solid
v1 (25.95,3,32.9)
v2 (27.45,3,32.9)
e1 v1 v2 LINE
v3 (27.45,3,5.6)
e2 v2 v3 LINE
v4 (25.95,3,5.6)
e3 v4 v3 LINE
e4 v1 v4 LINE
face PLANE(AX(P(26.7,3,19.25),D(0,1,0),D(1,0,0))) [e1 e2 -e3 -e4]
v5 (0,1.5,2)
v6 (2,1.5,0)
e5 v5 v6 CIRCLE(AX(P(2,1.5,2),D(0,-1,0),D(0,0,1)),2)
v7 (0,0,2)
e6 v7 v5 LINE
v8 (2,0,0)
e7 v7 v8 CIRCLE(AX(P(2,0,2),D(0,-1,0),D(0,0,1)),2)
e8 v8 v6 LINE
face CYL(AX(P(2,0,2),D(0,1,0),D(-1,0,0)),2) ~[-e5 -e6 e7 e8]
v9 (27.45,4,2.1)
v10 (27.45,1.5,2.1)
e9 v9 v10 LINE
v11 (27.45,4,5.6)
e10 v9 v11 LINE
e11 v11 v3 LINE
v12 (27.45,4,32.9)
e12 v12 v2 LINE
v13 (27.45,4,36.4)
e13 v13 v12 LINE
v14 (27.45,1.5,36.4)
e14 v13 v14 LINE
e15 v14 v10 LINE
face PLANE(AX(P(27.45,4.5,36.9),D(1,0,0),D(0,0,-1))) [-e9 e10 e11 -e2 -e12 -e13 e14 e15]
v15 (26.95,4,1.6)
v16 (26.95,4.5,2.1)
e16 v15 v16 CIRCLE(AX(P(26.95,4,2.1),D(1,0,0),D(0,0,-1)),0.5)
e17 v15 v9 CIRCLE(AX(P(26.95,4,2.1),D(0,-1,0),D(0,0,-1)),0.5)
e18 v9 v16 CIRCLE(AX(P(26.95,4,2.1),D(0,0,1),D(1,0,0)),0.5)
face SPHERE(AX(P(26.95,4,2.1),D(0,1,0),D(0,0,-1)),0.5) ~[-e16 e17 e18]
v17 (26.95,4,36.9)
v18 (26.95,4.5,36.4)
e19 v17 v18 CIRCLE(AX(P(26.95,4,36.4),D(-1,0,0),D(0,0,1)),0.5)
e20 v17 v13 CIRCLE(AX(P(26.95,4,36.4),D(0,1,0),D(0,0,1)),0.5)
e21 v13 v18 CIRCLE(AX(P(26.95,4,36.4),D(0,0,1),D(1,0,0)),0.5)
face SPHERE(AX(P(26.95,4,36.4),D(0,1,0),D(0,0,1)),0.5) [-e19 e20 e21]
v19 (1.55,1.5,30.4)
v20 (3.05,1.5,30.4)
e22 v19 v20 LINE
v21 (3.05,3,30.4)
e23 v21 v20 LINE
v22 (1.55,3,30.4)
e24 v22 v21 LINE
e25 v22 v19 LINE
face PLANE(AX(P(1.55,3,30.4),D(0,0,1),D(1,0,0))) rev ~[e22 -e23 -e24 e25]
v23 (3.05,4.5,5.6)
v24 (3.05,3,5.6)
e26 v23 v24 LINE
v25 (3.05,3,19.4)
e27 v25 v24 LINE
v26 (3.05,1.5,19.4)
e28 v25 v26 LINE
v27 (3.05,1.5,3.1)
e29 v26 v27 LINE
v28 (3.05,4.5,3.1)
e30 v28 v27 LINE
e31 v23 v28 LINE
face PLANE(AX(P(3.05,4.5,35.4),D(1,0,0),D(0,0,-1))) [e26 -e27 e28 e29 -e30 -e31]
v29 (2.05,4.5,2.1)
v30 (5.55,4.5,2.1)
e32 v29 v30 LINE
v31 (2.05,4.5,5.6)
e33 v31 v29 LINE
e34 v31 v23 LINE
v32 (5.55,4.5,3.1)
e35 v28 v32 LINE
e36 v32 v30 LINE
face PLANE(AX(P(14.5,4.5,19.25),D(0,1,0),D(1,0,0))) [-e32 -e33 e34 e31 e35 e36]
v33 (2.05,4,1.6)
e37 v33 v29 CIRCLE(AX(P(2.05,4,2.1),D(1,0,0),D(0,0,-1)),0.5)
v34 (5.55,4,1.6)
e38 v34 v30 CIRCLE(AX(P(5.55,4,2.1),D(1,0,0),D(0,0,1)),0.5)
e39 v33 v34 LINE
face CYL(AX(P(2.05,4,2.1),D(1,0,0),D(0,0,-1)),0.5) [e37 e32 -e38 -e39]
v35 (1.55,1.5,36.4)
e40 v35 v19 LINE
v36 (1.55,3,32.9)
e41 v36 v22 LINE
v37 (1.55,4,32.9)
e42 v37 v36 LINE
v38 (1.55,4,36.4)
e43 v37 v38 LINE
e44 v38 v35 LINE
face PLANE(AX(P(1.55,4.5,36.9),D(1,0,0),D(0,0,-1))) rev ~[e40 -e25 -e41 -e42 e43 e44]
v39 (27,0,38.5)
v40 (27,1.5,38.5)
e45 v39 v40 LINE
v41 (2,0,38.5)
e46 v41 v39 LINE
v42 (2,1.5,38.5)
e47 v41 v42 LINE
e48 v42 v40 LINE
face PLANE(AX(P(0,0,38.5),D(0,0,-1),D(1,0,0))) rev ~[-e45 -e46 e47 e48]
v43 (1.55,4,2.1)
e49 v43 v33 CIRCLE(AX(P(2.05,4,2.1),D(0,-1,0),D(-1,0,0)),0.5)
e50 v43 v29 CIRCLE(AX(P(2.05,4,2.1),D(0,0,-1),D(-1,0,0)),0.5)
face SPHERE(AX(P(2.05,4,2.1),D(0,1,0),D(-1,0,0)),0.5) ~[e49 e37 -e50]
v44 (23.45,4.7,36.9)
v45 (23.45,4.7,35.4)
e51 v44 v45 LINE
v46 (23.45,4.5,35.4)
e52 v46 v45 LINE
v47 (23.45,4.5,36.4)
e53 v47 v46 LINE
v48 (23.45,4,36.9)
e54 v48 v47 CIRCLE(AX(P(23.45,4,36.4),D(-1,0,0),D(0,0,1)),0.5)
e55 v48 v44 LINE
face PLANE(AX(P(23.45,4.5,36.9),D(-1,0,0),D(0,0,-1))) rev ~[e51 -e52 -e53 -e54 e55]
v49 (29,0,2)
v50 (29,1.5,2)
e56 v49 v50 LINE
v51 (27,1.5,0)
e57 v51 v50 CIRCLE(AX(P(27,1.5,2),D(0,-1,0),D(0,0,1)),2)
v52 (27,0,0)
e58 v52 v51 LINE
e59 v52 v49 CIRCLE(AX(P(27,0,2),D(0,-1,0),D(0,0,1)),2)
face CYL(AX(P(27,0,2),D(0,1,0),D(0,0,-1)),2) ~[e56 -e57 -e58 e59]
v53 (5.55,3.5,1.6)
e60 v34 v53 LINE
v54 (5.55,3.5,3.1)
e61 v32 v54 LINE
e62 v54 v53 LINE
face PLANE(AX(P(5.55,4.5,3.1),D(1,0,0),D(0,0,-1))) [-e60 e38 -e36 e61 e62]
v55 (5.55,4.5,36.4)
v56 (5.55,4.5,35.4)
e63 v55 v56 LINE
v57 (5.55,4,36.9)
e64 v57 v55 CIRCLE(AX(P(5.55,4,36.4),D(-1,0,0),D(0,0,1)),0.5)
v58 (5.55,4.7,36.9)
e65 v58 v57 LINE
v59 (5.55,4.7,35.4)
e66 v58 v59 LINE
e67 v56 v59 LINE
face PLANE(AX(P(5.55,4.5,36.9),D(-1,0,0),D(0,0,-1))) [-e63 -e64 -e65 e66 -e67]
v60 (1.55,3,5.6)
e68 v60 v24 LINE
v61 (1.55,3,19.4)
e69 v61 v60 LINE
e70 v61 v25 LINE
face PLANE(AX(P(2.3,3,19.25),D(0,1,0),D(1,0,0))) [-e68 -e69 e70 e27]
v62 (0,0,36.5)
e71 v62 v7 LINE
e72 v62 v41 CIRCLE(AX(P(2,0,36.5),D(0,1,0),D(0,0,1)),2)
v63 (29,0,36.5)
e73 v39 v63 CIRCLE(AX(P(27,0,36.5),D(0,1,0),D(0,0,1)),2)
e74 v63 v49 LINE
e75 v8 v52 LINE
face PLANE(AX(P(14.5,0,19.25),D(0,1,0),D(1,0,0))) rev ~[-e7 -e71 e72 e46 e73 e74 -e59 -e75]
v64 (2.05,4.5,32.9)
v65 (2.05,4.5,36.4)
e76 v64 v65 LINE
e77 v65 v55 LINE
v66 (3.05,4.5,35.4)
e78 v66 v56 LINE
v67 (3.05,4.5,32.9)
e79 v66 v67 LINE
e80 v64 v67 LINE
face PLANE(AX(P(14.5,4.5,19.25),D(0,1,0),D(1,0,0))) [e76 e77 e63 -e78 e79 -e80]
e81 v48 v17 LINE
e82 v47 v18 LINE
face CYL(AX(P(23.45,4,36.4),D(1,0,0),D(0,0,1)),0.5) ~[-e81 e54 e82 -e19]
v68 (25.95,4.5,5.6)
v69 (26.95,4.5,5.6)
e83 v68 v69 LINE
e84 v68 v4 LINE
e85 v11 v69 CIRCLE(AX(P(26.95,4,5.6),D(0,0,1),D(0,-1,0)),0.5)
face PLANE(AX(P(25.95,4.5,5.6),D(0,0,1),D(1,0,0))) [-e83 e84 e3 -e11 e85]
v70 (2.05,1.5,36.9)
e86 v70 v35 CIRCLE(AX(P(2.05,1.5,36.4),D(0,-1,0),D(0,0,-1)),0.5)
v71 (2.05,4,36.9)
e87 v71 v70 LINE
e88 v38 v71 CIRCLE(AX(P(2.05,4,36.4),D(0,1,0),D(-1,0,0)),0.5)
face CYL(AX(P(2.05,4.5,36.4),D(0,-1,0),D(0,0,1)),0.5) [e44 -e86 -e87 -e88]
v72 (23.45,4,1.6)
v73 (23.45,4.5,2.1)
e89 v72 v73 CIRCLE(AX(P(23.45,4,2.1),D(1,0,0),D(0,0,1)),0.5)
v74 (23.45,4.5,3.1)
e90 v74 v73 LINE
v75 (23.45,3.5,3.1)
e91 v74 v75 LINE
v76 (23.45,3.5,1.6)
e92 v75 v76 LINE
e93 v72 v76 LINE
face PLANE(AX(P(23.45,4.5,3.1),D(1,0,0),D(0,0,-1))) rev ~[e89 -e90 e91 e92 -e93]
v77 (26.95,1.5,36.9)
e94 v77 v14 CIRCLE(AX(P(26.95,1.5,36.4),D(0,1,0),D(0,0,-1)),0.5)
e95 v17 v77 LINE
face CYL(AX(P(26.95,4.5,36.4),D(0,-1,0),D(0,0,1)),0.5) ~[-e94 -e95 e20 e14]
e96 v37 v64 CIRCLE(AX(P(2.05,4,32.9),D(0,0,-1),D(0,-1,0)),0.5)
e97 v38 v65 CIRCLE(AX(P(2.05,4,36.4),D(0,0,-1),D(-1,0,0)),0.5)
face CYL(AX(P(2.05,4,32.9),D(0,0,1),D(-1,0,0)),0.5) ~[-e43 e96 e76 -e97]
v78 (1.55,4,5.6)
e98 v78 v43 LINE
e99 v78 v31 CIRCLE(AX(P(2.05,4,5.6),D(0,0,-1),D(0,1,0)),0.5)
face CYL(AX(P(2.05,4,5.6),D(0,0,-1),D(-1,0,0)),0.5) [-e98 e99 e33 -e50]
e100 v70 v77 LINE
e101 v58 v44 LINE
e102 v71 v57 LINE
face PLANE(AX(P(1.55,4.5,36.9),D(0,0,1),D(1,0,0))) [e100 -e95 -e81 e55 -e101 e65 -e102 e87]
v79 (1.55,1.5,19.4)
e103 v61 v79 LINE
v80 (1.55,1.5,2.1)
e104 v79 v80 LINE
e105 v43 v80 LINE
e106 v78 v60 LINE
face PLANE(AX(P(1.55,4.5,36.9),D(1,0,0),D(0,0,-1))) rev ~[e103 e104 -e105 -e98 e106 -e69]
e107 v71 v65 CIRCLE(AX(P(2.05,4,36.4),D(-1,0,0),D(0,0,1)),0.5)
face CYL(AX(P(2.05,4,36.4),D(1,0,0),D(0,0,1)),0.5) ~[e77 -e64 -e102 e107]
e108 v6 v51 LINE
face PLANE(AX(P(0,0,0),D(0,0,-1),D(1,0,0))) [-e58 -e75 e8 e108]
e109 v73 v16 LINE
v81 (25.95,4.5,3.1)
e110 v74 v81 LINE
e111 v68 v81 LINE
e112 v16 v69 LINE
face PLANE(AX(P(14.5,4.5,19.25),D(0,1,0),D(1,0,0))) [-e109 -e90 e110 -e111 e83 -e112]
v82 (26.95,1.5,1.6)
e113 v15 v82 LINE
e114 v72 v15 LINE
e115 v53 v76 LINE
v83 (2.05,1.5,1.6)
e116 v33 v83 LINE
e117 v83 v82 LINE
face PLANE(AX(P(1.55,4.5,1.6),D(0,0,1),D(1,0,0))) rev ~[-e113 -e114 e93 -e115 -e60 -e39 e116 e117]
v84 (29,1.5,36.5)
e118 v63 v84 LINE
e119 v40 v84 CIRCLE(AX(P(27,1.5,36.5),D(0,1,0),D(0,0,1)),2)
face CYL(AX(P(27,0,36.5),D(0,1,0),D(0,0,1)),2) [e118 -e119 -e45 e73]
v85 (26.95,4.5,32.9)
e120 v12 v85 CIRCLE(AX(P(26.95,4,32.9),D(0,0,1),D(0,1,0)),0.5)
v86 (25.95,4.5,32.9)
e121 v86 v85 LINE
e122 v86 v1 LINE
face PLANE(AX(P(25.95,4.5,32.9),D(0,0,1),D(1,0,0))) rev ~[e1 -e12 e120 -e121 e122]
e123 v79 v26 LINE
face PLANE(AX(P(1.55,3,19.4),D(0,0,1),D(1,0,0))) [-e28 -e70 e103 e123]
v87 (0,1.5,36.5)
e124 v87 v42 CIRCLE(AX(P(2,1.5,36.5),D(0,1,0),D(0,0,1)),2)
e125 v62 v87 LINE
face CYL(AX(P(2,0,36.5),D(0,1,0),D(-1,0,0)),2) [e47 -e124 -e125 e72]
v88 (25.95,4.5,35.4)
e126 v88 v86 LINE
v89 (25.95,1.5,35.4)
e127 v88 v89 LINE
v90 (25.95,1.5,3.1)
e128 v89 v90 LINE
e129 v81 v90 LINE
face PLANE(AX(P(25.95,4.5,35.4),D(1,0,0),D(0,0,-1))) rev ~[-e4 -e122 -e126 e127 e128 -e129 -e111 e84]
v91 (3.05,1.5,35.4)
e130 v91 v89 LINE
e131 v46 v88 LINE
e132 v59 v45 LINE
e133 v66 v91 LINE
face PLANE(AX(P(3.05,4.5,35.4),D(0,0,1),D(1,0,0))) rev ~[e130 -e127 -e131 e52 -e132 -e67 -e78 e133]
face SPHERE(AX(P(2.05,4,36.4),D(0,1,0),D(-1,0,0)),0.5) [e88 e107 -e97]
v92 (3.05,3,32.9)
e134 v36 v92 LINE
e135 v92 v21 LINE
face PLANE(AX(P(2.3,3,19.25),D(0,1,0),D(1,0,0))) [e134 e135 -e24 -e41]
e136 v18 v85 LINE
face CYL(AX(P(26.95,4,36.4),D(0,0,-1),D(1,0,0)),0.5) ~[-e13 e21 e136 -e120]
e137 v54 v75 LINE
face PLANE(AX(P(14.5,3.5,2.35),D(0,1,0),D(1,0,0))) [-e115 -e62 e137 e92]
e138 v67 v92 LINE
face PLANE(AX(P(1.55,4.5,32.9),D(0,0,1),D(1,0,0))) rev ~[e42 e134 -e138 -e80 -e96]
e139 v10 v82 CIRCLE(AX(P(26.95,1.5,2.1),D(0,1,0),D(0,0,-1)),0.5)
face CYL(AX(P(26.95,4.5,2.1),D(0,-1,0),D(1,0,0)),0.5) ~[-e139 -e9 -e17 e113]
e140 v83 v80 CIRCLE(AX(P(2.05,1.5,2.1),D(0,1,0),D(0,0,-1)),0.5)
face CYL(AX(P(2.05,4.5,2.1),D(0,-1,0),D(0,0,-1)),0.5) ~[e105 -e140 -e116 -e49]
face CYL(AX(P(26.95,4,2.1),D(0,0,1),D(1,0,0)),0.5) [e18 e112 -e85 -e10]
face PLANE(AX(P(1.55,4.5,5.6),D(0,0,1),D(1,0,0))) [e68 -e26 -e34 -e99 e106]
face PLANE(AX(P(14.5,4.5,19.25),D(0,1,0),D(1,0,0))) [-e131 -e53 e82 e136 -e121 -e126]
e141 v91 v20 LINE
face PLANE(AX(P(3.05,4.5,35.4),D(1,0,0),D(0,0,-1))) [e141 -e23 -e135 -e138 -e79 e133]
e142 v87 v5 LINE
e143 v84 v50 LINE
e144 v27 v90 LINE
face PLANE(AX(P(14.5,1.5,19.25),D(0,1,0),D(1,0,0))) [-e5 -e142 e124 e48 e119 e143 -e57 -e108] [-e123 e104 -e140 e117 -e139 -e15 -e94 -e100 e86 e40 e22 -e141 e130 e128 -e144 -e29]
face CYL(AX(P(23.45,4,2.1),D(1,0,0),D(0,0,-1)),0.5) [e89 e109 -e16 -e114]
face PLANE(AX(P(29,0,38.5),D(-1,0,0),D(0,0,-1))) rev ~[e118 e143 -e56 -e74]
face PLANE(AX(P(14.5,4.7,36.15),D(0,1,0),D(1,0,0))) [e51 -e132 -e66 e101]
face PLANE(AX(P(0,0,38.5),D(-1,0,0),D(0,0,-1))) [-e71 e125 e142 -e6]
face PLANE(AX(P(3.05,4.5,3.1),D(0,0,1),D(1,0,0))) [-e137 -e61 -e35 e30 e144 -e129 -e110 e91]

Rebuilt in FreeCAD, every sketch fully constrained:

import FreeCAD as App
import Part
import Sketcher
from FreeCAD import Vector
Q = App.Units.Quantity


def edges_at(feature, points):
    """Names of the edges that pass closest to the given points."""
    edges = feature.Shape.Edges
    near = lambda p: min(range(len(edges)), key=lambda i: edges[i].distToShape(Part.Vertex(*p))[0])
    return sorted({f"Edge{near(p) + 1}" for p in points})


def add_polygon(sketch, points):
    """Adds a closed chain of lines whose ends are joined by coincident constraints."""
    first, n = sketch.GeometryCount, len(points)
    for a, b in zip(points, points[1:] + points[:1]):
        sketch.addGeometry(Part.LineSegment(App.Vector(*a, 0), App.Vector(*b, 0)), False)
    for i in range(n):
        sketch.addConstraint(Sketcher.Constraint("Coincident", first + i, 2, first + (i + 1) % n, 1))

doc = App.newDocument("Part")
body = doc.addObject("PartDesign::Body", "Body")

sketch1 = body.newObject("Sketcher::SketchObject", "Sketch")
sketch1.AttachmentSupport = (doc.getObject("XZ_Plane"), [""])
sketch1.MapMode = "FlatFace"
add_polygon(sketch1, [(0, 0), (0, 38), (29, 38), (29, 0)])
sketch1.addConstraint([
    Sketcher.Constraint("Vertical", 0),
    Sketcher.Constraint("Horizontal", 1),
    Sketcher.Constraint("Vertical", 2),
    Sketcher.Constraint("Horizontal", 3),
    Sketcher.Constraint("Coincident", 3, 2, -1, 1),
    Sketcher.Constraint("DistanceX", 1, 1, 1, 2, Q("29 mm")),
    Sketcher.Constraint("DistanceY", 0, 1, 0, 2, Q("38.5 mm")),
])
pad1 = body.newObject("PartDesign::Pad", "Pad")
pad1.Profile = sketch1
pad1.Length = 4.5
pad1.Reversed = True

sketch2 = body.newObject("Sketcher::SketchObject", "Sketch001")
sketch2.AttachmentSupport = (doc.getObject("XZ_Plane"), [""])
sketch2.MapMode = "FlatFace"
sketch2.AttachmentOffset = App.Placement(Vector(0, 0, -4.5), App.Rotation())
add_polygon(sketch2, [(0, 0), (0, 38), (29, 38), (29, 0)])
add_polygon(sketch2, [(27, 37), (2, 37), (2, 2), (27, 2)])
sketch2.addConstraint([
    Sketcher.Constraint("Vertical", 0),
    Sketcher.Constraint("Horizontal", 1),
    Sketcher.Constraint("Vertical", 2),
    Sketcher.Constraint("Horizontal", 3),
    Sketcher.Constraint("Horizontal", 4),
    Sketcher.Constraint("Vertical", 5),
    Sketcher.Constraint("Horizontal", 6),
    Sketcher.Constraint("Vertical", 7),
    Sketcher.Constraint("Coincident", 3, 2, -1, 1),
    Sketcher.Constraint("DistanceX", 1, 1, 1, 2, Q("29 mm")),
    Sketcher.Constraint("DistanceX", 4, 2, 4, 1, Q("25.9 mm")),
    Sketcher.Constraint("DistanceY", 0, 1, 0, 2, Q("38.5 mm")),
    Sketcher.Constraint("DistanceY", 5, 2, 5, 1, Q("35.3 mm")),
    Sketcher.Constraint("DistanceY", -1, 1, 4, 2, Q("36.9 mm")),
    Sketcher.Constraint("DistanceX", -1, 1, 4, 2, Q("1.55 mm")),
])
pocket1 = body.newObject("PartDesign::Pocket", "Pocket")
pocket1.Profile = sketch2
pocket1.Length = 3
pocket1.Reversed = True

sketch3 = body.newObject("Sketcher::SketchObject", "Sketch002")
sketch3.AttachmentSupport = (doc.getObject("XZ_Plane"), [""])
sketch3.MapMode = "FlatFace"
sketch3.AttachmentOffset = App.Placement(Vector(0, 0, -4.5), App.Rotation())
add_polygon(sketch3, [(3, 3), (3, 35), (26, 35), (26, 3)])
sketch3.addConstraint([
    Sketcher.Constraint("Vertical", 0),
    Sketcher.Constraint("Horizontal", 1),
    Sketcher.Constraint("Vertical", 2),
    Sketcher.Constraint("Horizontal", 3),
    Sketcher.Constraint("DistanceX", 1, 1, 1, 2, Q("22.9 mm")),
    Sketcher.Constraint("DistanceY", 0, 1, 0, 2, Q("32.3 mm")),
    Sketcher.Constraint("DistanceY", -1, 1, 0, 2, Q("35.4 mm")),
    Sketcher.Constraint("DistanceX", -1, 1, 0, 2, Q("3.05 mm")),
])
pocket2 = body.newObject("PartDesign::Pocket", "Pocket001")
pocket2.Profile = sketch3
pocket2.Length = 3
pocket2.Reversed = True

sketch4 = body.newObject("Sketcher::SketchObject", "Sketch003")
sketch4.AttachmentSupport = (doc.getObject("XZ_Plane"), [""])
sketch4.MapMode = "FlatFace"
sketch4.AttachmentOffset = App.Placement(Vector(0, 0, -4.5), App.Rotation())
add_polygon(sketch4, [(5.5, 1.6), (5.5, 3.1), (23.4, 3.1), (23.4, 1.6)])
sketch4.addConstraint([
    Sketcher.Constraint("Vertical", 0),
    Sketcher.Constraint("Horizontal", 1),
    Sketcher.Constraint("Vertical", 2),
    Sketcher.Constraint("Horizontal", 3),
    Sketcher.Constraint("DistanceX", 1, 1, 1, 2, Q("17.9 mm")),
    Sketcher.Constraint("DistanceY", 0, 1, 0, 2, Q("1.5 mm")),
    Sketcher.Constraint("DistanceY", -1, 1, 0, 2, Q("3.1 mm")),
    Sketcher.Constraint("DistanceX", -1, 1, 0, 2, Q("5.55 mm")),
])
pocket3 = body.newObject("PartDesign::Pocket", "Pocket002")
pocket3.Profile = sketch4
pocket3.Length = 1
pocket3.Reversed = True

sketch5 = body.newObject("Sketcher::SketchObject", "Sketch004")
sketch5.AttachmentSupport = (doc.getObject("XZ_Plane"), [""])
sketch5.MapMode = "FlatFace"
sketch5.AttachmentOffset = App.Placement(Vector(0, 0, -4.5), App.Rotation())
add_polygon(sketch5, [(1.6, 5.6), (1.6, 32.9), (3, 32.9), (3, 5.6)])
add_polygon(sketch5, [(25.9, 5.6), (25.9, 32.9), (27.4, 32.9), (27.4, 5.6)])
sketch5.addConstraint([
    Sketcher.Constraint("Vertical", 0),
    Sketcher.Constraint("Horizontal", 1),
    Sketcher.Constraint("Vertical", 2),
    Sketcher.Constraint("Horizontal", 3),
    Sketcher.Constraint("Vertical", 4),
    Sketcher.Constraint("Horizontal", 5),
    Sketcher.Constraint("Vertical", 6),
    Sketcher.Constraint("Horizontal", 7),
    Sketcher.Constraint("Horizontal", 1, 2, 4, 2),
    Sketcher.Constraint("Horizontal", 3, 2, 6, 2),
    Sketcher.Constraint("Equal", 3, 5),
    Sketcher.Constraint("DistanceX", 1, 1, 1, 2, Q("1.5 mm")),
    Sketcher.Constraint("DistanceY", 0, 1, 0, 2, Q("27.3 mm")),
    Sketcher.Constraint("DistanceY", -1, 1, 0, 2, Q("32.9 mm")),
    Sketcher.Constraint("DistanceX", 1, 2, 4, 2, Q("22.9 mm")),
    Sketcher.Constraint("DistanceX", -1, 1, 0, 2, Q("1.55 mm")),
])
pocket4 = body.newObject("PartDesign::Pocket", "Pocket003")
pocket4.Profile = sketch5
pocket4.Length = 1.5
pocket4.Reversed = True
doc.recompute()

fillet = body.newObject("PartDesign::Fillet", "Fillet")
fillet.Base = (pocket4, edges_at(pocket4, [
    (0, 0.75, 0),
    (29, 0.75, 0),
    (29, 0.75, 38.5),
    (0, 0.75, 38.5),
]))
fillet.Radius = 2
doc.recompute()

fillet2 = body.newObject("PartDesign::Fillet", "Fillet001")
fillet2.Base = (fillet, edges_at(fillet, [
    (1.55, 3, 1.6),
    (27.45, 3, 1.6),
    (27.45, 3, 36.9),
    (1.55, 3, 36.9),
]))
fillet2.Radius = 0.5

sketch6 = body.newObject("Sketcher::SketchObject", "Sketch005")
sketch6.AttachmentSupport = (doc.getObject("XZ_Plane"), [""])
sketch6.MapMode = "FlatFace"
sketch6.AttachmentOffset = App.Placement(Vector(0, 0, -4.5), App.Rotation())
add_polygon(sketch6, [(5.5, 35.4), (5.5, 36.9), (23.4, 36.9), (23.4, 35.4)])
sketch6.addConstraint([
    Sketcher.Constraint("Vertical", 0),
    Sketcher.Constraint("Horizontal", 1),
    Sketcher.Constraint("Vertical", 2),
    Sketcher.Constraint("Horizontal", 3),
    Sketcher.Constraint("DistanceX", 1, 1, 1, 2, Q("17.9 mm")),
    Sketcher.Constraint("DistanceY", 0, 1, 0, 2, Q("1.5 mm")),
    Sketcher.Constraint("DistanceY", -1, 1, 0, 2, Q("36.9 mm")),
    Sketcher.Constraint("DistanceX", -1, 1, 0, 2, Q("5.55 mm")),
])
pad2 = body.newObject("PartDesign::Pad", "Pad001")
pad2.Profile = sketch6
pad2.Length = 0.2
pad2.Reversed = True
doc.recompute()

fillet3 = body.newObject("PartDesign::Fillet", "Fillet002")
fillet3.Base = (pad2, edges_at(pad2, [
    (27.45, 4.5, 34.65),
    (25.2, 4.5, 1.6),
    (27.304, 4.5, 1.746),
    (1.55, 4.5, 3.85),
    (1.696, 4.5, 1.746),
    (3.8, 4.5, 36.9),
    (27.304, 4.5, 36.754),
    (1.696, 4.5, 36.754),
    (25.2, 4.5, 36.9),
    (3.8, 4.5, 1.6),
    (1.55, 4.5, 34.65),
    (27.45, 4.5, 3.85),
]))
fillet3.Radius = 0.5

sketch7 = body.newObject("Sketcher::SketchObject", "Sketch006")
sketch7.AttachmentSupport = (doc.getObject("XZ_Plane"), [""])
sketch7.MapMode = "FlatFace"
sketch7.AttachmentOffset = App.Placement(Vector(0, 0, -3), App.Rotation())
add_polygon(sketch7, [(1.6, 19.4), (1.6, 30.4), (3, 30.4), (3, 19.4)])
sketch7.addConstraint([
    Sketcher.Constraint("Vertical", 0),
    Sketcher.Constraint("Horizontal", 1),
    Sketcher.Constraint("Vertical", 2),
    Sketcher.Constraint("Horizontal", 3),
    Sketcher.Constraint("DistanceY", 0, 1, 0, 2, Q("11 mm")),
    Sketcher.Constraint("DistanceX", 1, 1, 1, 2, Q("1.5 mm")),
    Sketcher.Constraint("DistanceY", -1, 1, 0, 2, Q("30.4 mm")),
    Sketcher.Constraint("DistanceX", -1, 1, 0, 2, Q("1.55 mm")),
])
pocket5 = body.newObject("PartDesign::Pocket", "Pocket004")
pocket5.Profile = sketch7
pocket5.Length = 1.5
pocket5.Reversed = True

doc.recompute()
